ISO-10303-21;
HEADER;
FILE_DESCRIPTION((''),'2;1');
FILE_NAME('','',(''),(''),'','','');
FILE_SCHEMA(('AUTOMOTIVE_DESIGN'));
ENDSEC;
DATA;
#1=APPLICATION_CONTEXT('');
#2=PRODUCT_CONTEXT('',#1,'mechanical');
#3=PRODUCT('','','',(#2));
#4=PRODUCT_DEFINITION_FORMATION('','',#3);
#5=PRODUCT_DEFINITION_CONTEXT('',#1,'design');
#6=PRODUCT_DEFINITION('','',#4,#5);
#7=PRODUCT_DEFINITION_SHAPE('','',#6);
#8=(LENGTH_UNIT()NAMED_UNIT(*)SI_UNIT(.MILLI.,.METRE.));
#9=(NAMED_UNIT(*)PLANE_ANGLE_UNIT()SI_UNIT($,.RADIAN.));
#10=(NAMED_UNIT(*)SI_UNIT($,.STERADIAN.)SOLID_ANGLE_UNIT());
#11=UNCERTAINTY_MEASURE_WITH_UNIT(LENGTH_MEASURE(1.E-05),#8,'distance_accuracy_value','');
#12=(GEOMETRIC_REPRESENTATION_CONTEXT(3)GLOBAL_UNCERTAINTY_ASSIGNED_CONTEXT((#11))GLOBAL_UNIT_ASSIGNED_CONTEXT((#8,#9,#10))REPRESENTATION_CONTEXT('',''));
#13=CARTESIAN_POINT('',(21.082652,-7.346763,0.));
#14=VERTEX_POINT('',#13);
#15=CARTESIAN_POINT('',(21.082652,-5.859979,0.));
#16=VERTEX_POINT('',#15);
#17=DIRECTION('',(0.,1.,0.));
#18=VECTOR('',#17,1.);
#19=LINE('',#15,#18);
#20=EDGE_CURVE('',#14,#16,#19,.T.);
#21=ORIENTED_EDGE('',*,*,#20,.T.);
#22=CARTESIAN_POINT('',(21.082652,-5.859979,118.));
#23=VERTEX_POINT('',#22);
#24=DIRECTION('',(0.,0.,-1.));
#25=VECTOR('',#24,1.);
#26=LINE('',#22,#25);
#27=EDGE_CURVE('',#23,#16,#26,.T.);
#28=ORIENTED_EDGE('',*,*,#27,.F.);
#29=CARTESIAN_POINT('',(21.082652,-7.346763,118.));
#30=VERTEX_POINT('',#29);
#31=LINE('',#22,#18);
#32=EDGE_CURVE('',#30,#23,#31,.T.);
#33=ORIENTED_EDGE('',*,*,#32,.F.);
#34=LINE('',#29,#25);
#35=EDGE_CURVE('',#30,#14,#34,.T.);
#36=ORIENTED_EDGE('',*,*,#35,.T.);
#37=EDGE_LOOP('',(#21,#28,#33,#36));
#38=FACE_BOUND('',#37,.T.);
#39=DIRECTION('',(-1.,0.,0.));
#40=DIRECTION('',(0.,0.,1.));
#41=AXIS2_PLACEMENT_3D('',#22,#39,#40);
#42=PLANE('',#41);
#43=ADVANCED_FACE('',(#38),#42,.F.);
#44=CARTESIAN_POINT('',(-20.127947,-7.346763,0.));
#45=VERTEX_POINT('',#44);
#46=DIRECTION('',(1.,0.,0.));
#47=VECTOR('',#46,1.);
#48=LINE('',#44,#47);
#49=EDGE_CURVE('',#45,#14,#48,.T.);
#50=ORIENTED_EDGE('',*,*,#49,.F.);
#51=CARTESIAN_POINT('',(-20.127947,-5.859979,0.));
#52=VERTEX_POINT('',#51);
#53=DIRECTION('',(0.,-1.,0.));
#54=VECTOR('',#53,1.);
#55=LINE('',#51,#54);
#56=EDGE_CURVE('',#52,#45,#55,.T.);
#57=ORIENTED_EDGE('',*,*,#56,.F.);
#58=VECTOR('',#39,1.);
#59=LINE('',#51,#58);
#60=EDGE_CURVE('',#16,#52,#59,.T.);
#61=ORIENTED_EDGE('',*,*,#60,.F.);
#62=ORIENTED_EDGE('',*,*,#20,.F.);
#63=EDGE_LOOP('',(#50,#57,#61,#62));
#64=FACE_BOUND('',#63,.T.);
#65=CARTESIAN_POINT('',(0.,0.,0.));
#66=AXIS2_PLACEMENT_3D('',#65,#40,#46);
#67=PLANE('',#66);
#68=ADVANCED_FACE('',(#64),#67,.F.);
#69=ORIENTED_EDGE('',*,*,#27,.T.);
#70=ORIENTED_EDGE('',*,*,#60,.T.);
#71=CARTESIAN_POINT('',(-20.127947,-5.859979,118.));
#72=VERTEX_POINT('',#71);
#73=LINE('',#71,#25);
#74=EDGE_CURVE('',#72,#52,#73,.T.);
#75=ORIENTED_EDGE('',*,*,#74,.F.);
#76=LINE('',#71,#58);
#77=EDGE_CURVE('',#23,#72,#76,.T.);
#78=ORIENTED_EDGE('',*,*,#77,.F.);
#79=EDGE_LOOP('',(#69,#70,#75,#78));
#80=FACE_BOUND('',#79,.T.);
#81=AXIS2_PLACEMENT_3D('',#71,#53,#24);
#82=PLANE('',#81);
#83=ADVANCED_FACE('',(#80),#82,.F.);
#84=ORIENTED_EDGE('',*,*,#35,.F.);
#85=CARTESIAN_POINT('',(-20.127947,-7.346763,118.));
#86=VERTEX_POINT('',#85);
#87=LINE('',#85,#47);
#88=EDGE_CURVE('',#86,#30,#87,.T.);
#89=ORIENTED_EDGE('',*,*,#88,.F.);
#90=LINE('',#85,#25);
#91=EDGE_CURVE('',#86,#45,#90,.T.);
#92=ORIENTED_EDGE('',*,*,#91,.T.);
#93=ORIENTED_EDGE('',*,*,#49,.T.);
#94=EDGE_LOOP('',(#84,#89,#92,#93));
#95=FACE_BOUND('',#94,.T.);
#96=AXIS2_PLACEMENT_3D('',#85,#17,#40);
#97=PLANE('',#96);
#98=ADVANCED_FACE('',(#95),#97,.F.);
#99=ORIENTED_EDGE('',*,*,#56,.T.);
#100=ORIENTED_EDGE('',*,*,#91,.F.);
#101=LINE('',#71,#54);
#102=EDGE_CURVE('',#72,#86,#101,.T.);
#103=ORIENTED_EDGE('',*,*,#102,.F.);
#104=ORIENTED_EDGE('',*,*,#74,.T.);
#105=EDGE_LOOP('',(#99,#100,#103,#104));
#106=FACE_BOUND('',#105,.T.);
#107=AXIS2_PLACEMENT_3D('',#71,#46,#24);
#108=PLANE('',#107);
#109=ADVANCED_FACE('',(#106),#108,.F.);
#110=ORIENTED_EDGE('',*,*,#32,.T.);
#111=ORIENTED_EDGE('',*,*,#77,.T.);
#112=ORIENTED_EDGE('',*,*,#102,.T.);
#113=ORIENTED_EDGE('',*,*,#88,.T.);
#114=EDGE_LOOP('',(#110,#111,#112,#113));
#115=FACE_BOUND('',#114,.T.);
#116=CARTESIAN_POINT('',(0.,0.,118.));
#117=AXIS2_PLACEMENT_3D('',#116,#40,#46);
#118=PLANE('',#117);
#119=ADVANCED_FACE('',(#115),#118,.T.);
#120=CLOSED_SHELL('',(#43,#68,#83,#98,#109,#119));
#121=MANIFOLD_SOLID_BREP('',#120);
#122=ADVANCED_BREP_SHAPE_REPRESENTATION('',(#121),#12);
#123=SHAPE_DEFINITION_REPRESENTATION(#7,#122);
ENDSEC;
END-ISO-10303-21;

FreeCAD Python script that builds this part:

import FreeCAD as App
import Part
import Sketcher
Q = App.Units.Quantity

doc = App.newDocument("Part")
body = doc.addObject("PartDesign::Body", "Body")

# Sketch on XY plane
sketch1 = doc.addObject("Sketcher::SketchObject", "Sketch")
body.addObject(sketch1)
sketch1.AttachmentSupport = (doc.XY_Plane, [""])
sketch1.MapMode = "FlatFace"
sketch1.addGeometry([
    Part.LineSegment(App.Vector(-20.1, -5.9, 0), App.Vector(-20.1, -7.3, 0)),
    Part.LineSegment(App.Vector(-20.1, -7.3, 0), App.Vector(21.1, -7.3, 0)),
    Part.LineSegment(App.Vector(21.1, -7.3, 0), App.Vector(21.1, -5.9, 0)),
    Part.LineSegment(App.Vector(21.1, -5.9, 0), App.Vector(-20.1, -5.9, 0)),
], False)
sketch1.addConstraint([
    Sketcher.Constraint("Coincident", 0, 2, 1, 1),
    Sketcher.Constraint("Coincident", 1, 2, 2, 1),
    Sketcher.Constraint("Coincident", 2, 2, 3, 1),
    Sketcher.Constraint("Coincident", 3, 2, 0, 1),
    Sketcher.Constraint("Vertical", 0),
    Sketcher.Constraint("Horizontal", 1),
    Sketcher.Constraint("Vertical", 2),
    Sketcher.Constraint("Horizontal", 3),
    Sketcher.Constraint("DistanceX", 1, 1, 1, 2, Q("41.210599 mm")),
    Sketcher.Constraint("DistanceY", 0, 2, 0, 1, Q("1.486784 mm")),
    Sketcher.Constraint("DistanceX", -1, 1, 1, 2, Q("21.082652 mm")),
    Sketcher.Constraint("DistanceY", 2, 2, -1, 1, Q("5.859979 mm")),
])
pad1 = doc.addObject("PartDesign::Pad", "Pad")
body.addObject(pad1)
pad1.Profile = sketch1
pad1.Length = 118

doc.recompute()
